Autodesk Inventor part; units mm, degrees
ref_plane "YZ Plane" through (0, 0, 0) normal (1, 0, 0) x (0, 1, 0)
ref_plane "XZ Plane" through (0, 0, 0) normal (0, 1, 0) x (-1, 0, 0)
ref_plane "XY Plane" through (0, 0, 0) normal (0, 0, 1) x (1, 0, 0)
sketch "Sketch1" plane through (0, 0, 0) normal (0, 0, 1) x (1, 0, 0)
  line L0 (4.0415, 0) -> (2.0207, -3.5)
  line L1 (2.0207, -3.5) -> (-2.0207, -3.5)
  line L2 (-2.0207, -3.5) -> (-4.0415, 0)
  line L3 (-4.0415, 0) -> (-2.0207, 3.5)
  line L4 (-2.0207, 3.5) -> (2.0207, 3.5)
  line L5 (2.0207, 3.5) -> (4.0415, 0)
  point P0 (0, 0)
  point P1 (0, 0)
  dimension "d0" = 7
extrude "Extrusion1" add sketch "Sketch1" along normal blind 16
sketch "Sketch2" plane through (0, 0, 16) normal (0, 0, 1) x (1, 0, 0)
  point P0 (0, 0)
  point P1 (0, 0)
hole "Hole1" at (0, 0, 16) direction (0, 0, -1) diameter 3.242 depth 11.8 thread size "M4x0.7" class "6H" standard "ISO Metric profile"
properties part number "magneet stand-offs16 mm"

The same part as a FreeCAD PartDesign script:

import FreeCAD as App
import Part
import Sketcher
Q = App.Units.Quantity


def add_polygon(sketch, points):
    """Adds a closed chain of lines whose ends are joined by coincident constraints."""
    first, n = sketch.GeometryCount, len(points)
    for a, b in zip(points, points[1:] + points[:1]):
        sketch.addGeometry(Part.LineSegment(App.Vector(*a, 0), App.Vector(*b, 0)), False)
    for i in range(n):
        sketch.addConstraint(Sketcher.Constraint("Coincident", first + i, 2, first + (i + 1) % n, 1))

doc = App.newDocument("Part")
params = doc.addObject("Spreadsheet::Sheet", "Params")
for row, (alias, value) in enumerate([
    ("pad1_length", "16 mm"),
    ("hole_diameter", "3.242 mm"),
    ("hole_depth", "11.8 mm"),
], start=1):
    params.set(f"A{row}", alias)
    params.set(f"B{row}", "=" + value)
    params.setAlias(f"B{row}", alias)

body = doc.addObject("PartDesign::Body", "Body")

# Sketch on XY plane
sketch1 = doc.addObject("Sketcher::SketchObject", "Sketch")
body.addObject(sketch1)
sketch1.AttachmentSupport = (doc.XY_Plane, [""])
sketch1.MapMode = "FlatFace"
add_polygon(sketch1, [(2, -3.5), (4, 0), (2, 3.5), (-2, 3.5), (-4, 0), (-2, -3.5)])  # lines 0-5
sketch1.addConstraint(Sketcher.Constraint("Horizontal", 2))
sketch1.addConstraint(Sketcher.Constraint("Horizontal", 5))
sketch1.addConstraint(Sketcher.Constraint("Symmetric", 0, 2, 3, 2, -1, 1))
sketch1.addConstraint(Sketcher.Constraint("Symmetric", 1, 2, 4, 2, -1, 1))
sketch1.addConstraint(Sketcher.Constraint("PointOnObject", 0, 2, -1))
sketch1.addConstraint(Sketcher.Constraint("Parallel", 0, 3))
sketch1.addConstraint(Sketcher.Constraint("Vertical", 2, 2, 4, 2))
sketch1.addConstraint(Sketcher.Constraint("DistanceY", 4, 2, 2, 2, Q("7 mm")))
sketch1.addConstraint(Sketcher.Constraint("Angle", 0, Q("59.999 deg")))
sketch1.addConstraint(Sketcher.Constraint("DistanceX", 2, 2, 2, 1, Q("4.0414 mm")))
pad1 = doc.addObject("PartDesign::Pad", "Pad")
body.addObject(pad1)
pad1.Profile = sketch1
pad1.setExpression("Length", "Params.pad1_length")

# Sketch on XY plane
sketch2 = doc.addObject("Sketcher::SketchObject", "Sketch001")
body.addObject(sketch2)
sketch2.AttachmentSupport = (doc.XY_Plane, [""])
sketch2.MapMode = "FlatFace"
sketch2.AttachmentOffset = App.Placement(App.Vector(0, 0, 16), App.Rotation())
sketch2.addGeometry(Part.Circle(App.Vector(0, 0, 0), App.Vector(0, 0, 1), 1.6), False)
sketch2.addConstraint(Sketcher.Constraint("Coincident", 0, 3, -1, 1))
sketch2.addConstraint(Sketcher.Constraint("Diameter", 0, Q("3.242 mm")))
doc.recompute()
hole = doc.addObject("PartDesign::Hole", "Hole")
body.addObject(hole)
hole.Profile = sketch2
hole.ThreadType = "None"
hole.setExpression("Diameter", "Params.hole_diameter")
hole.DepthType = "Dimension"
hole.setExpression("Depth", "Params.hole_depth")
hole.DrillPoint = "Flat"

doc.recompute()
